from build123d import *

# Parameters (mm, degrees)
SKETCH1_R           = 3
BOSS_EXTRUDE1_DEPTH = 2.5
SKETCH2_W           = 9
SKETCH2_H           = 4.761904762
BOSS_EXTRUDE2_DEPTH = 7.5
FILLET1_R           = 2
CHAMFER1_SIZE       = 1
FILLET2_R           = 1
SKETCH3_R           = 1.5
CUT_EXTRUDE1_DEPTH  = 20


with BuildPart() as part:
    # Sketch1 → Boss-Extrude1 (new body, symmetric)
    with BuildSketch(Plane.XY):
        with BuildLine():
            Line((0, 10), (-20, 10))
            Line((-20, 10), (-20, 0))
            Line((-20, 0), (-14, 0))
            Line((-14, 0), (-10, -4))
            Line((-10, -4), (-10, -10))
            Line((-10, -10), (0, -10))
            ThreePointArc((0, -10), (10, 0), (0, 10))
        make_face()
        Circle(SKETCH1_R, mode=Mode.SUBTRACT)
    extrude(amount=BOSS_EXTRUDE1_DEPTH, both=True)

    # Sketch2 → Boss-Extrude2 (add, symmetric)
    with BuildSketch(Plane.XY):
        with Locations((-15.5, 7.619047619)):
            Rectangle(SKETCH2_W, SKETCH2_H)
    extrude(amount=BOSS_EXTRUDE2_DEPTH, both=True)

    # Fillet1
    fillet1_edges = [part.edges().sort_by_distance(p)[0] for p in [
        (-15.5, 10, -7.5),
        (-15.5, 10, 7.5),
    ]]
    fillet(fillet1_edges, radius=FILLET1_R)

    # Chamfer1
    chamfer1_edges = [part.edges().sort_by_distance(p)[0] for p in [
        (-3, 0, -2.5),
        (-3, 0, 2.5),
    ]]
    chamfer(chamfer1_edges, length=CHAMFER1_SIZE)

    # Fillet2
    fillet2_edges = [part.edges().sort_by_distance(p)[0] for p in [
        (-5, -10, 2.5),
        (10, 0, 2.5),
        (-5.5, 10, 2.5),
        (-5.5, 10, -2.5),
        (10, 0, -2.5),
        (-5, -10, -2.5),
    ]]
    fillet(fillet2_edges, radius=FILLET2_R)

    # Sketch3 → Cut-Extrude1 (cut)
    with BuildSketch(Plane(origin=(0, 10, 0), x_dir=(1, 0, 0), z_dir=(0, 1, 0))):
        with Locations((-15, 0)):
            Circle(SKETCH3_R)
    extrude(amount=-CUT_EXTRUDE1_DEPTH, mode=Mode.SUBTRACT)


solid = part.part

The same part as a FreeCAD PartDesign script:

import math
import FreeCAD as App
import Part
import Sketcher

V = App.Vector
Q = App.Units.Quantity


def edges_at(feature, points):
    """Names of the edges that pass closest to the given points."""
    edges = feature.Shape.Edges
    near = lambda p: min(range(len(edges)), key=lambda i: edges[i].distToShape(Part.Vertex(*p))[0])
    return sorted({f"Edge{near(p) + 1}" for p in points})

doc = App.newDocument("Part")
body = doc.addObject("PartDesign::Body", "Body")

# Sketch on XY plane
sketch1 = body.newObject("Sketcher::SketchObject", "Sketch")
sketch1.AttachmentSupport = (doc.getObject("XY_Plane"), [""])
sketch1.MapMode = "FlatFace"
sketch1.addGeometry([
    Part.LineSegment(V(0, 10, 0), V(-20, 10, 0)),  # 0
    Part.LineSegment(V(-20, 10, 0), V(-20, 0, 0)),  # 1
    Part.LineSegment(V(-20, 0, 0), V(-14, 0, 0)),  # 2
    Part.LineSegment(V(-14, 0, 0), V(-10, -4, 0)),  # 3
    Part.LineSegment(V(-10, -4, 0), V(-10, -10, 0)),  # 4
    Part.LineSegment(V(-10, -10, 0), V(0, -10, 0)),  # 5
    Part.ArcOfCircle(Part.Circle(V(0, 0, 0), V(0, 0, 1), 10), math.radians(-90), math.radians(90)),  # 6
    Part.Circle(V(0, 0, 0), V(0, 0, 1), 3),  # 7
], False)
sketch1.addConstraint([
    Sketcher.Constraint("Coincident", 0, 2, 1, 1),
    Sketcher.Constraint("Coincident", 1, 2, 2, 1),
    Sketcher.Constraint("Coincident", 2, 2, 3, 1),
    Sketcher.Constraint("Coincident", 3, 2, 4, 1),
    Sketcher.Constraint("Coincident", 4, 2, 5, 1),
    Sketcher.Constraint("Tangent", 5, 2, 6, 1),
    Sketcher.Constraint("Tangent", 6, 2, 0, 1),
    Sketcher.Constraint("Horizontal", 0),
    Sketcher.Constraint("Vertical", 1),
    Sketcher.Constraint("Horizontal", 2),
    Sketcher.Constraint("Vertical", 4),
    Sketcher.Constraint("Horizontal", 5),
    Sketcher.Constraint("Coincident", 6, 3, -1, 1),
    Sketcher.Constraint("Coincident", 7, 3, -1, 1),
    Sketcher.Constraint("PointOnObject", 1, 2, -1),
    Sketcher.Constraint("Equal", 5, 1),
    Sketcher.Constraint("Equal", 2, 4),
    Sketcher.Constraint("Diameter", 7, Q("6 mm")),
    Sketcher.Constraint("Radius", 6, Q("10 mm")),
    Sketcher.Constraint("DistanceX", 0, 2, 0, 1, Q("20 mm")),
    Sketcher.Constraint("DistanceX", 2, 1, 2, 2, Q("6 mm")),
])
pad1 = body.newObject("PartDesign::Pad", "Pad")
pad1.Profile = sketch1
pad1.Length = 5
pad1.Midplane = True

# Sketch on XY plane
sketch2 = body.newObject("Sketcher::SketchObject", "Sketch001")
sketch2.AttachmentSupport = (doc.getObject("XY_Plane"), [""])
sketch2.MapMode = "FlatFace"
sketch2.addGeometry([
    Part.LineSegment(V(-20, 10, 0), V(-20, 5.2, 0)),
    Part.LineSegment(V(-20, 5.2, 0), V(-11, 5.2, 0)),
    Part.LineSegment(V(-11, 5.2, 0), V(-11, 10, 0)),
    Part.LineSegment(V(-11, 10, 0), V(-20, 10, 0)),
], False)
sketch2.addConstraint([
    Sketcher.Constraint("Coincident", 0, 2, 1, 1),
    Sketcher.Constraint("Coincident", 1, 2, 2, 1),
    Sketcher.Constraint("Coincident", 2, 2, 3, 1),
    Sketcher.Constraint("Coincident", 3, 2, 0, 1),
    Sketcher.Constraint("Vertical", 0),
    Sketcher.Constraint("Horizontal", 1),
    Sketcher.Constraint("Vertical", 2),
    Sketcher.Constraint("Horizontal", 3),
    Sketcher.Constraint("DistanceX", 1, 1, 1, 2, Q("9 mm")),
    Sketcher.Constraint("DistanceX", 0, 2, -1, 1, Q("20 mm")),
    Sketcher.Constraint("DistanceY", -1, 1, 2, 2, Q("10 mm")),
    Sketcher.Constraint("DistanceY", 0, 2, 0, 1, Q("4.761905 mm")),
])
pad2 = body.newObject("PartDesign::Pad", "Pad001")
pad2.Profile = sketch2
pad2.Length = 15
pad2.Midplane = True
doc.recompute()

fillet = body.newObject("PartDesign::Fillet", "Fillet")
fillet.Base = (pad2, edges_at(pad2, [(-15.5, 10, -7.5), (-15.5, 10, 7.5)]))
fillet.Radius = 2
doc.recompute()

chamfer = body.newObject("PartDesign::Chamfer", "Chamfer")
chamfer.Base = (fillet, edges_at(fillet, [(-3, 0, -2.5), (-3, 0, 2.5)]))
chamfer.Size = 1
doc.recompute()

fillet2 = body.newObject("PartDesign::Fillet", "Fillet001")
fillet2.Base = (chamfer, edges_at(chamfer, [
    (-5, -10, 2.5),
    (10, 0, 2.5),
    (-5.5, 10, 2.5),
    (-5.5, 10, -2.5),
    (10, 0, -2.5),
    (-5, -10, -2.5),
]))
fillet2.Radius = 1

# Sketch on XZ plane
sketch3 = body.newObject("Sketcher::SketchObject", "Sketch002")
sketch3.AttachmentSupport = (doc.getObject("XZ_Plane"), [""])
sketch3.MapMode = "FlatFace"
sketch3.AttachmentOffset = App.Placement(V(0, 0, -10), App.Rotation())
sketch3.addGeometry(Part.Circle(V(-15, 0, 0), V(0, 0, 1), 1.5), False)
sketch3.addConstraint([
    Sketcher.Constraint("PointOnObject", 0, 3, -1),
    Sketcher.Constraint("Diameter", 0, Q("3 mm")),
    Sketcher.Constraint("DistanceX", 0, 3, -1, 1, Q("15 mm")),
])
pocket1 = body.newObject("PartDesign::Pocket", "Pocket")
pocket1.Profile = sketch3
pocket1.Length = 20
pocket1.Reversed = True

doc.recompute()
